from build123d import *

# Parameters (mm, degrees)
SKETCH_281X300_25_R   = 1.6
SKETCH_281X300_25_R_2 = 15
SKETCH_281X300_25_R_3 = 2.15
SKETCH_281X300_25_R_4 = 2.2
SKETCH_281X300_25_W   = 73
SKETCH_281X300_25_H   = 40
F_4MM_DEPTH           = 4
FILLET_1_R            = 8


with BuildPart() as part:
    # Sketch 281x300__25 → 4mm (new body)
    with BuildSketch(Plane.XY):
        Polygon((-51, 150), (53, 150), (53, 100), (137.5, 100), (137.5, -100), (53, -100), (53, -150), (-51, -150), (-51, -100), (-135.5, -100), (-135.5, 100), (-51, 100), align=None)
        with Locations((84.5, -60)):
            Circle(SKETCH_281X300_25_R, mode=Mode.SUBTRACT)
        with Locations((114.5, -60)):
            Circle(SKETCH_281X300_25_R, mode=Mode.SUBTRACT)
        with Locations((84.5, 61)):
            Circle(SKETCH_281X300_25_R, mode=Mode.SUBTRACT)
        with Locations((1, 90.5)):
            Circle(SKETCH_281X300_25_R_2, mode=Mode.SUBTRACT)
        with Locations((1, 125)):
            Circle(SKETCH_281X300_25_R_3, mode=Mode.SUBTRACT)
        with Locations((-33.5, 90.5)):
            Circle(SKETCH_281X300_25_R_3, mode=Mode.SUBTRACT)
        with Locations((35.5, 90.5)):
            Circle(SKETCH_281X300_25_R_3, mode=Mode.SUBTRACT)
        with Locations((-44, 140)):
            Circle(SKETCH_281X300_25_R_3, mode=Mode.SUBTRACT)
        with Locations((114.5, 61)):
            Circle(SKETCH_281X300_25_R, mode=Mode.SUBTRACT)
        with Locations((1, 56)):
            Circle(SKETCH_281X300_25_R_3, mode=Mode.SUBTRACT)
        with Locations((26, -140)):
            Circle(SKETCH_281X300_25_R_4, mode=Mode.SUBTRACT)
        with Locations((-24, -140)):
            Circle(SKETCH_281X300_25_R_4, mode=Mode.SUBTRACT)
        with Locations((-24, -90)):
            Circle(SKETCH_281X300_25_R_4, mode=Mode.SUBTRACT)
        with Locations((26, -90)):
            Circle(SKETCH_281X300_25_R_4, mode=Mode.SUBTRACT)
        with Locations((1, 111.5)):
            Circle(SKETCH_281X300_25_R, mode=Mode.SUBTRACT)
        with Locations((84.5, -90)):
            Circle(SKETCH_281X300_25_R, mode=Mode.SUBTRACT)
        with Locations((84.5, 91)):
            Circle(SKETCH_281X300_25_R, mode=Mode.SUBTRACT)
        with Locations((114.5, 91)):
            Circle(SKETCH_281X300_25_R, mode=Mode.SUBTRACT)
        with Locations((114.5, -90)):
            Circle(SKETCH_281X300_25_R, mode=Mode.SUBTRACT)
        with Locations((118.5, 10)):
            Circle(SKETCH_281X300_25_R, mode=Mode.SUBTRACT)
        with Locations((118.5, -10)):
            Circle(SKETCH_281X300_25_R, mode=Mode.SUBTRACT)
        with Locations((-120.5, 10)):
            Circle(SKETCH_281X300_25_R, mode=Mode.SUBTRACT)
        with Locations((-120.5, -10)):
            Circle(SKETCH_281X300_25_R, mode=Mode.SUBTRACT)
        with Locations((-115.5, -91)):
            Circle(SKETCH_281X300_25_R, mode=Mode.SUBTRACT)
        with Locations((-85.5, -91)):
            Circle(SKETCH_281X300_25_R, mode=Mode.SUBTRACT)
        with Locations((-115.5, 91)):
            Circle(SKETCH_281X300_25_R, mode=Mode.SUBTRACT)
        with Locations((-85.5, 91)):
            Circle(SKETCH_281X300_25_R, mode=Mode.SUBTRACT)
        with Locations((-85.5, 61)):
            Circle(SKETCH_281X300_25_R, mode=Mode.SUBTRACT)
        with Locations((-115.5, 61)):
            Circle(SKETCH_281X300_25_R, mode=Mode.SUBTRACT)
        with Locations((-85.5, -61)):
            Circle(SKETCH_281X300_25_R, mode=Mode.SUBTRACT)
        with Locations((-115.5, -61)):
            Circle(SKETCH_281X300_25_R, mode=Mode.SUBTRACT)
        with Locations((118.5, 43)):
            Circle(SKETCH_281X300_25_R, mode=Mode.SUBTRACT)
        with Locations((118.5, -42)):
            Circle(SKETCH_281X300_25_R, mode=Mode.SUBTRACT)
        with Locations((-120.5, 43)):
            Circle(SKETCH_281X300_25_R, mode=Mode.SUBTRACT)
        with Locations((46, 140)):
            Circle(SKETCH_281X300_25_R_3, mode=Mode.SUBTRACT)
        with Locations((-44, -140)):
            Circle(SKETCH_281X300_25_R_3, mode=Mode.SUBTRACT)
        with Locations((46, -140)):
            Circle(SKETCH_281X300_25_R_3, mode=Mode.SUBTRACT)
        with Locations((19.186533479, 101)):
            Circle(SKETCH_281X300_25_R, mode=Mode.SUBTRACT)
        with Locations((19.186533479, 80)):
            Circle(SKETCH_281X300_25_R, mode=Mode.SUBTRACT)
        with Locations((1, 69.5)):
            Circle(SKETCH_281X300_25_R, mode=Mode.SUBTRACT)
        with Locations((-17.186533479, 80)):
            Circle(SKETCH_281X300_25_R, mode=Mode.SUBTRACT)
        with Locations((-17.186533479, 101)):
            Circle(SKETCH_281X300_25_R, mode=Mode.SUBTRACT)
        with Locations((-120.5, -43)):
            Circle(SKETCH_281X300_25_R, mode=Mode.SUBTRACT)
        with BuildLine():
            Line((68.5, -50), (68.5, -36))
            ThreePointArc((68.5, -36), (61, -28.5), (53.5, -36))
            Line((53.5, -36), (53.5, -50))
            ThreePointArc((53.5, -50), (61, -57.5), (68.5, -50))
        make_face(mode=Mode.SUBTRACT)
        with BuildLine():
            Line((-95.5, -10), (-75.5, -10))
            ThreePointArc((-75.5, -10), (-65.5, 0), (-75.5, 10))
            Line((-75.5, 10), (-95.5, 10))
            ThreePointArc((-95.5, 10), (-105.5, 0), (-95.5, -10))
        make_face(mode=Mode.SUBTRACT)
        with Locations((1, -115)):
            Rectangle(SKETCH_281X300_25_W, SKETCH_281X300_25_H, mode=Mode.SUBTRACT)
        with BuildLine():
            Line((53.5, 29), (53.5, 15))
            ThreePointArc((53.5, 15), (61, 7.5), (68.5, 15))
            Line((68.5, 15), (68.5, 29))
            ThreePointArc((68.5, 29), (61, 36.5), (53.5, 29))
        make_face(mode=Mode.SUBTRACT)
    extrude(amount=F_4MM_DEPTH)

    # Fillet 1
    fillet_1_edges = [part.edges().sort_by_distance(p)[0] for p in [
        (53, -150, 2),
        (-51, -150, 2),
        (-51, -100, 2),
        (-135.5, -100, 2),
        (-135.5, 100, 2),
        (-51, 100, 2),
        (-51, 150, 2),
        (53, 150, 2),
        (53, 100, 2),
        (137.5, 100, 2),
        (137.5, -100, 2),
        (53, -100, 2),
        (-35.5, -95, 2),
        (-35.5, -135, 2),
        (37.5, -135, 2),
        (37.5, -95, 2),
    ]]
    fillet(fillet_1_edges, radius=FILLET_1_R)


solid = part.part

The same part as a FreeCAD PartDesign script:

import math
import FreeCAD as App
import Part
import Sketcher
from FreeCAD import Vector


def edges_at(feature, points):
    """Names of the edges that pass closest to the given points."""
    edges = feature.Shape.Edges
    near = lambda p: min(range(len(edges)), key=lambda i: edges[i].distToShape(Part.Vertex(*p))[0])
    return sorted({f"Edge{near(p) + 1}" for p in points})


def add_polygon(sketch, points):
    """Adds a closed chain of lines whose ends are joined by coincident constraints."""
    first, n = sketch.GeometryCount, len(points)
    for a, b in zip(points, points[1:] + points[:1]):
        sketch.addGeometry(Part.LineSegment(App.Vector(*a, 0), App.Vector(*b, 0)), False)
    for i in range(n):
        sketch.addConstraint(Sketcher.Constraint("Coincident", first + i, 2, first + (i + 1) % n, 1))

doc = App.newDocument("Part")
body = doc.addObject("PartDesign::Body", "Body")

sketch1 = doc.addObject("Sketcher::SketchObject", "Sketch")
body.addObject(sketch1)
sketch1.AttachmentSupport = (doc.XY_Plane, [""])
sketch1.MapMode = "FlatFace"
add_polygon(sketch1, [(53, 150), (-51, 150), (-51, 100), (-135.5, 100), (-135.5, -100), (-51, -100), (-51, -150), (53, -150), (53, -100), (137.5, -100), (137.5, 100), (53, 100)])
sketch1.addGeometry(Part.Circle(Vector(114.5, -90, 0), Vector(0, 0, 1), 1.6), False)
sketch1.addGeometry(Part.Circle(Vector(84.5, -90, 0), Vector(0, 0, 1), 1.6), False)
sketch1.addGeometry(Part.Circle(Vector(46, -140, 0), Vector(0, 0, 1), 2.1), False)
sketch1.addGeometry(Part.Circle(Vector(26, -140, 0), Vector(0, 0, 1), 2.2), False)
add_polygon(sketch1, [(-35.5, -135), (-35.5, -95), (37.5, -95), (37.5, -135)])
sketch1.addGeometry(Part.Circle(Vector(26, -90, 0), Vector(0, 0, 1), 2.2), False)
sketch1.addGeometry(Part.Circle(Vector(114.5, -60, 0), Vector(0, 0, 1), 1.6), False)
sketch1.addGeometry(Part.Circle(Vector(118.5, -42, 0), Vector(0, 0, 1), 1.6), False)
sketch1.addGeometry(Part.Circle(Vector(84.5, -60, 0), Vector(0, 0, 1), 1.6), False)
sketch1.addGeometry(Part.ArcOfCircle(Part.Circle(Vector(61, -50, 0), Vector(0, 0, 1), 7.5), math.radians(180), math.radians(360)), False)
sketch1.addGeometry(Part.LineSegment(Vector(53.5, -50, 0), Vector(53.5, -36, 0)), False)
sketch1.addGeometry(Part.ArcOfCircle(Part.Circle(Vector(61, -36, 0), Vector(0, 0, 1), 7.5), math.radians(0), math.radians(180)), False)
sketch1.addGeometry(Part.LineSegment(Vector(68.5, -36, 0), Vector(68.5, -50, 0)), False)
sketch1.addGeometry(Part.Circle(Vector(118.5, -10, 0), Vector(0, 0, 1), 1.6), False)
sketch1.addGeometry(Part.Circle(Vector(-24, -140, 0), Vector(0, 0, 1), 2.2), False)
sketch1.addGeometry(Part.Circle(Vector(-44, -140, 0), Vector(0, 0, 1), 2.1), False)
sketch1.addGeometry(Part.Circle(Vector(-24, -90, 0), Vector(0, 0, 1), 2.2), False)
sketch1.addGeometry(Part.Circle(Vector(-85.5, -91, 0), Vector(0, 0, 1), 1.6), False)
sketch1.addGeometry(Part.Circle(Vector(-115.5, -91, 0), Vector(0, 0, 1), 1.6), False)
sketch1.addGeometry(Part.Circle(Vector(-85.5, -61, 0), Vector(0, 0, 1), 1.6), False)
sketch1.addGeometry(Part.Circle(Vector(-115.5, -61, 0), Vector(0, 0, 1), 1.6), False)
sketch1.addGeometry(Part.Circle(Vector(-120.5, -43, 0), Vector(0, 0, 1), 1.6), False)
sketch1.addGeometry(Part.Circle(Vector(-120.5, -10, 0), Vector(0, 0, 1), 1.6), False)
sketch1.addGeometry(Part.Circle(Vector(118.5, 10, 0), Vector(0, 0, 1), 1.6), False)
sketch1.addGeometry(Part.ArcOfCircle(Part.Circle(Vector(61, 29, 0), Vector(0, 0, 1), 7.5), math.radians(0), math.radians(180)), False)
sketch1.addGeometry(Part.LineSegment(Vector(68.5, 29, 0), Vector(68.5, 15, 0)), False)
sketch1.addGeometry(Part.ArcOfCircle(Part.Circle(Vector(61, 15, 0), Vector(0, 0, 1), 7.5), math.radians(180), math.radians(360)), False)
sketch1.addGeometry(Part.LineSegment(Vector(53.5, 15, 0), Vector(53.5, 29, 0)), False)
sketch1.addGeometry(Part.Circle(Vector(118.5, 43, 0), Vector(0, 0, 1), 1.6), False)
sketch1.addGeometry(Part.Circle(Vector(114.5, 61, 0), Vector(0, 0, 1), 1.6), False)
sketch1.addGeometry(Part.Circle(Vector(84.5, 61, 0), Vector(0, 0, 1), 1.6), False)
sketch1.addGeometry(Part.Circle(Vector(1, 56, 0), Vector(0, 0, 1), 2.1), False)
sketch1.addGeometry(Part.Circle(Vector(1, 69.5, 0), Vector(0, 0, 1), 1.6), False)
sketch1.addGeometry(Part.Circle(Vector(114.5, 91, 0), Vector(0, 0, 1), 1.6), False)
sketch1.addGeometry(Part.Circle(Vector(84.5, 91, 0), Vector(0, 0, 1), 1.6), False)
sketch1.addGeometry(Part.Circle(Vector(35.5, 90.5, 0), Vector(0, 0, 1), 2.1), False)
sketch1.addGeometry(Part.Circle(Vector(19.2, 80, 0), Vector(0, 0, 1), 1.6), False)
sketch1.addGeometry(Part.Circle(Vector(19.2, 101, 0), Vector(0, 0, 1), 1.6), False)
sketch1.addGeometry(Part.Circle(Vector(1, 90.5, 0), Vector(0, 0, 1), 15), False)
sketch1.addGeometry(Part.Circle(Vector(46, 140, 0), Vector(0, 0, 1), 2.1), False)
sketch1.addGeometry(Part.Circle(Vector(1, 111.5, 0), Vector(0, 0, 1), 1.6), False)
sketch1.addGeometry(Part.Circle(Vector(1, 125, 0), Vector(0, 0, 1), 2.1), False)
sketch1.addGeometry(Part.ArcOfCircle(Part.Circle(Vector(-95.5, 0, 0), Vector(0, 0, 1), 10), math.radians(90), math.radians(270)), False)
sketch1.addGeometry(Part.LineSegment(Vector(-95.5, 10, 0), Vector(-75.5, 10, 0)), False)
sketch1.addGeometry(Part.ArcOfCircle(Part.Circle(Vector(-75.5, 0, 0), Vector(0, 0, 1), 10), math.radians(-90), math.radians(90)), False)
sketch1.addGeometry(Part.LineSegment(Vector(-75.5, -10, 0), Vector(-95.5, -10, 0)), False)
sketch1.addGeometry(Part.Circle(Vector(-120.5, 10, 0), Vector(0, 0, 1), 1.6), False)
sketch1.addGeometry(Part.Circle(Vector(-85.5, 61, 0), Vector(0, 0, 1), 1.6), False)
sketch1.addGeometry(Part.Circle(Vector(-120.5, 43, 0), Vector(0, 0, 1), 1.6), False)
sketch1.addGeometry(Part.Circle(Vector(-115.5, 61, 0), Vector(0, 0, 1), 1.6), False)
sketch1.addGeometry(Part.Circle(Vector(-17.2, 80, 0), Vector(0, 0, 1), 1.6), False)
sketch1.addGeometry(Part.Circle(Vector(-17.2, 101, 0), Vector(0, 0, 1), 1.6), False)
sketch1.addGeometry(Part.Circle(Vector(-33.5, 90.5, 0), Vector(0, 0, 1), 2.1), False)
sketch1.addGeometry(Part.Circle(Vector(-44, 140, 0), Vector(0, 0, 1), 2.1), False)
sketch1.addGeometry(Part.Circle(Vector(-85.5, 91, 0), Vector(0, 0, 1), 1.6), False)
sketch1.addGeometry(Part.Circle(Vector(-115.5, 91, 0), Vector(0, 0, 1), 1.6), False)
sketch1.addConstraint([
    Sketcher.Constraint("Tangent", 24, 1, 25, 1),
    Sketcher.Constraint("Tangent", 25, 2, 26, 2),
    Sketcher.Constraint("Tangent", 26, 1, 27, 1),
    Sketcher.Constraint("Tangent", 27, 2, 24, 2),
    Sketcher.Constraint("Tangent", 39, 1, 40, 1),
    Sketcher.Constraint("Tangent", 40, 2, 41, 2),
    Sketcher.Constraint("Tangent", 41, 1, 42, 1),
    Sketcher.Constraint("Tangent", 42, 2, 39, 2),
    Sketcher.Constraint("Tangent", 57, 1, 58, 1),
    Sketcher.Constraint("Tangent", 58, 2, 59, 2),
    Sketcher.Constraint("Tangent", 59, 1, 60, 1),
    Sketcher.Constraint("Tangent", 60, 2, 57, 2),
    Sketcher.Constraint("Horizontal", 0),
    Sketcher.Constraint("Vertical", 1),
    Sketcher.Constraint("Horizontal", 2),
    Sketcher.Constraint("Vertical", 3),
    Sketcher.Constraint("Horizontal", 4),
    Sketcher.Constraint("Vertical", 5),
    Sketcher.Constraint("Horizontal", 6),
    Sketcher.Constraint("Vertical", 7),
    Sketcher.Constraint("Horizontal", 8),
    Sketcher.Constraint("Vertical", 9),
    Sketcher.Constraint("Horizontal", 10),
    Sketcher.Constraint("Vertical", 11),
    Sketcher.Constraint("Vertical", 16),
    Sketcher.Constraint("Horizontal", 17),
    Sketcher.Constraint("Vertical", 18),
    Sketcher.Constraint("Horizontal", 19),
    Sketcher.Constraint("Vertical", 25),
    Sketcher.Constraint("Vertical", 27),
    Sketcher.Constraint("Vertical", 40),
    Sketcher.Constraint("Vertical", 42),
    Sketcher.Constraint("Horizontal", 58),
    Sketcher.Constraint("Horizontal", 60),
    Sketcher.Constraint("Equal", 12, 13),
    Sketcher.Constraint("Equal", 15, 20),
    Sketcher.Constraint("Equal", 13, 21),
    Sketcher.Constraint("Equal", 21, 22),
    Sketcher.Constraint("Equal", 22, 23),
    Sketcher.Constraint("Equal", 23, 28),
    Sketcher.Constraint("Equal", 20, 29),
    Sketcher.Constraint("Equal", 14, 30),
    Sketcher.Constraint("Equal", 29, 31),
    Sketcher.Constraint("Equal", 28, 32),
    Sketcher.Constraint("Equal", 32, 33),
    Sketcher.Constraint("Equal", 33, 34),
    Sketcher.Constraint("Equal", 34, 35),
    Sketcher.Constraint("Equal", 35, 36),
    Sketcher.Constraint("Equal", 36, 37),
    Sketcher.Constraint("Equal", 37, 38),
    Sketcher.Constraint("Equal", 26, 39),
    Sketcher.Constraint("Equal", 38, 43),
    Sketcher.Constraint("Equal", 43, 44),
    Sketcher.Constraint("Equal", 44, 45),
    Sketcher.Constraint("Equal", 30, 46),
    Sketcher.Constraint("Equal", 45, 47),
    Sketcher.Constraint("Equal", 47, 48),
    Sketcher.Constraint("Equal", 48, 49),
    Sketcher.Constraint("Equal", 46, 50),
    Sketcher.Constraint("Equal", 49, 51),
    Sketcher.Constraint("Equal", 51, 52),
    Sketcher.Constraint("Equal", 50, 54),
    Sketcher.Constraint("Equal", 52, 55),
    Sketcher.Constraint("Equal", 54, 56),
    Sketcher.Constraint("Equal", 55, 61),
    Sketcher.Constraint("Equal", 61, 62),
    Sketcher.Constraint("Equal", 62, 63),
    Sketcher.Constraint("Equal", 63, 64),
    Sketcher.Constraint("Equal", 64, 65),
    Sketcher.Constraint("Equal", 65, 66),
    Sketcher.Constraint("Equal", 56, 67),
    Sketcher.Constraint("Equal", 67, 68),
    Sketcher.Constraint("Equal", 66, 69),
    Sketcher.Constraint("Equal", 69, 70),
    Sketcher.Constraint("Symmetric", 28, 3, 38, 3, -1),
    Sketcher.Constraint("Symmetric", 14, 3, 54, 3, -1),
    Sketcher.Constraint("Symmetric", 37, 3, 61, 3, -1),
    Sketcher.Constraint("Symmetric", 34, 3, 62, 3, -1),
    Sketcher.Constraint("Symmetric", 36, 3, 63, 3, -1),
    Sketcher.Constraint("Symmetric", 35, 3, 64, 3, -1),
    Sketcher.Constraint("Symmetric", 30, 3, 68, 3, -1),
    Sketcher.Constraint("Symmetric", 32, 3, 69, 3, -1),
    Sketcher.Constraint("Symmetric", 33, 3, 70, 3, -1),
    Sketcher.Constraint("Symmetric", 1, 2, 4, 2, -1),
    Sketcher.Constraint("Symmetric", 7, 2, 10, 2, -1),
    Sketcher.Constraint("PointOnObject", 57, 3, -1),
    Sketcher.Constraint("Horizontal", 12, 3, 13, 3),
    Sketcher.Constraint("Horizontal", 14, 3, 15, 3),
    Sketcher.Constraint("Horizontal", 13, 3, 20, 3),
    Sketcher.Constraint("Horizontal", 21, 3, 23, 3),
    Sketcher.Constraint("Horizontal", 15, 3, 29, 3),
    Sketcher.Constraint("Horizontal", 29, 3, 30, 3),
    Sketcher.Constraint("Horizontal", 20, 3, 31, 3),
    Sketcher.Constraint("Horizontal", 32, 3, 33, 3),
    Sketcher.Constraint("Horizontal", 34, 3, 35, 3),
    Sketcher.Constraint("Horizontal", 28, 3, 37, 3),
    Sketcher.Constraint("Horizontal", 44, 3, 45, 3),
    Sketcher.Constraint("Horizontal", 48, 3, 49, 3),
    Sketcher.Constraint("Horizontal", 50, 3, 53, 3),
    Sketcher.Constraint("Horizontal", 45, 3, 62, 3),
    Sketcher.Constraint("Horizontal", 43, 3, 63, 3),
    Sketcher.Constraint("Horizontal", 51, 3, 65, 3),
    Sketcher.Constraint("Horizontal", 52, 3, 66, 3),
    Sketcher.Constraint("Horizontal", 53, 3, 67, 3),
    Sketcher.Constraint("Horizontal", 49, 3, 69, 3),
    Sketcher.Constraint("Horizontal", 4, 2, 7, 2),
    Sketcher.Constraint("Horizontal", 61, 3, 57, 1),
    Sketcher.Constraint("Vertical", 15, 3, 20, 3),
    Sketcher.Constraint("Vertical", 12, 3, 21, 3),
    Sketcher.Constraint("Vertical", 13, 3, 23, 3),
    Sketcher.Constraint("Vertical", 22, 3, 28, 3),
    Sketcher.Constraint("Vertical", 29, 3, 31, 3),
    Sketcher.Constraint("Vertical", 32, 3, 34, 3),
    Sketcher.Constraint("Vertical", 33, 3, 35, 3),
    Sketcher.Constraint("Vertical", 36, 3, 37, 3),
    Sketcher.Constraint("Vertical", 26, 3, 39, 3),
    Sketcher.Constraint("Vertical", 38, 3, 43, 3),
    Sketcher.Constraint("Vertical", 21, 3, 44, 3),
    Sketcher.Constraint("Vertical", 23, 3, 45, 3),
    Sketcher.Constraint("Vertical", 46, 3, 47, 3),
    Sketcher.Constraint("Vertical", 44, 3, 48, 3),
    Sketcher.Constraint("Vertical", 45, 3, 49, 3),
    Sketcher.Constraint("Vertical", 51, 3, 52, 3),
    Sketcher.Constraint("Vertical", 47, 3, 53, 3),
    Sketcher.Constraint("Vertical", 53, 3, 55, 3),
    Sketcher.Constraint("Vertical", 55, 3, 56, 3),
    Sketcher.Constraint("Vertical", 65, 3, 66, 3),
    Sketcher.Constraint("Equal", 4, 8),
    Sketcher.Constraint("Equal", 1, 5),
    Sketcher.Constraint("Equal", 27, 40),
    Sketcher.Constraint("Diameter", 53, 30.0),
    Sketcher.Constraint("Radius", 57, 10.0),
    Sketcher.Constraint("Diameter", 12, 3.2),
    Sketcher.Constraint("Diameter", 14, 4.3),
    Sketcher.Constraint("Diameter", 15, 4.4),
    Sketcher.Constraint("Radius", 24, 7.5),
    Sketcher.Constraint("DistanceX", 0, 2, 0, 1, 104.0),
    Sketcher.Constraint("DistanceX", 17, 1, 17, 2, 73.0),
    Sketcher.Constraint("DistanceX", 58, 1, 58, 2, 20.0),
    Sketcher.Constraint("DistanceY", 1, 2, 1, 1, 50.0),
    Sketcher.Constraint("DistanceY", 3, 2, 3, 1, 200.0),
    Sketcher.Constraint("DistanceY", 16, 1, 16, 2, 40.0),
    Sketcher.Constraint("DistanceY", 25, 1, 25, 2, 14.0),
    Sketcher.Constraint("DistanceX", 2, 2, 2, 1, 84.5),
    Sketcher.Constraint("DistanceY", 12, 3, -1, 1, 90.0),
    Sketcher.Constraint("DistanceX", -1, 1, 14, 3, 46.0),
    Sketcher.Constraint("DistanceY", 14, 3, -1, 1, 140.0),
    Sketcher.Constraint("DistanceX", -1, 1, 15, 3, 26.0),
    Sketcher.Constraint("DistanceY", 21, 3, -1, 1, 60.0),
    Sketcher.Constraint("DistanceY", 22, 3, -1, 1, 42.0),
    Sketcher.Constraint("DistanceX", -1, 1, 24, 3, 61.0),
    Sketcher.Constraint("DistanceY", 24, 3, -1, 1, 50.0),
    Sketcher.Constraint("DistanceX", 29, 3, -1, 1, 24.0),
    Sketcher.Constraint("DistanceX", 30, 3, -1, 1, 44.0),
    Sketcher.Constraint("DistanceY", 32, 3, -1, 1, 91.0),
    Sketcher.Constraint("DistanceY", 34, 3, -1, 1, 61.0),
    Sketcher.Constraint("DistanceY", 36, 3, -1, 1, 43.0),
    Sketcher.Constraint("DistanceY", -1, 1, 39, 3, 29.0),
    Sketcher.Constraint("DistanceX", -1, 1, 46, 3, 1.0),
    Sketcher.Constraint("DistanceY", -1, 1, 46, 3, 56.0),
    Sketcher.Constraint("DistanceY", -1, 1, 51, 3, 80.0),
    Sketcher.Constraint("DistanceY", -1, 1, 52, 3, 101.0),
    Sketcher.Constraint("DistanceY", -1, 1, 56, 3, 125.0),
    Sketcher.Constraint("DistanceX", 0, 2, -1, 1, 51.0),
    Sketcher.Constraint("DistanceY", 16, 2, -1, 1, 95.0),
    Sketcher.Constraint("DistanceX", -1, 1, 12, 3, 114.5),
    Sketcher.Constraint("DistanceX", -1, 1, 13, 3, 84.5),
    Sketcher.Constraint("DistanceX", -1, 1, 22, 3, 118.5),
    Sketcher.Constraint("DistanceX", 32, 3, -1, 1, 85.5),
    Sketcher.Constraint("DistanceX", 33, 3, -1, 1, 115.5),
    Sketcher.Constraint("DistanceX", 36, 3, -1, 1, 120.5),
    Sketcher.Constraint("DistanceY", -1, 1, 47, 3, 69.5),
    Sketcher.Constraint("DistanceX", -1, 1, 50, 3, 35.5),
    Sketcher.Constraint("DistanceY", -1, 1, 50, 3, 90.5),
    Sketcher.Constraint("DistanceY", -1, 1, 55, 3, 111.5),
    Sketcher.Constraint("DistanceX", 57, 3, -1, 1, 95.5),
    Sketcher.Constraint("DistanceX", 67, 3, -1, 1, 33.5),
    Sketcher.Constraint("DistanceX", 16, 2, -1, 1, 35.5),
    Sketcher.Constraint("DistanceX", -1, 1, 51, 3, 19.186533),
    Sketcher.Constraint("DistanceX", 65, 3, -1, 1, 17.186533),
])
pad1 = doc.addObject("PartDesign::Pad", "Pad")
body.addObject(pad1)
pad1.Profile = sketch1
pad1.Length = 4
doc.recompute()

fillet = doc.addObject("PartDesign::Fillet", "Fillet")
body.addObject(fillet)
fillet.Base = (pad1, edges_at(pad1, [
    (53, -150, 2),
    (-51, -150, 2),
    (-51, -100, 2),
    (-135.5, -100, 2),
    (-135.5, 100, 2),
    (-51, 100, 2),
    (-51, 150, 2),
    (53, 150, 2),
    (53, 100, 2),
    (137.5, 100, 2),
    (137.5, -100, 2),
    (53, -100, 2),
    (-35.5, -95, 2),
    (-35.5, -135, 2),
    (37.5, -135, 2),
    (37.5, -95, 2),
]))
fillet.Radius = 8

doc.recompute()
